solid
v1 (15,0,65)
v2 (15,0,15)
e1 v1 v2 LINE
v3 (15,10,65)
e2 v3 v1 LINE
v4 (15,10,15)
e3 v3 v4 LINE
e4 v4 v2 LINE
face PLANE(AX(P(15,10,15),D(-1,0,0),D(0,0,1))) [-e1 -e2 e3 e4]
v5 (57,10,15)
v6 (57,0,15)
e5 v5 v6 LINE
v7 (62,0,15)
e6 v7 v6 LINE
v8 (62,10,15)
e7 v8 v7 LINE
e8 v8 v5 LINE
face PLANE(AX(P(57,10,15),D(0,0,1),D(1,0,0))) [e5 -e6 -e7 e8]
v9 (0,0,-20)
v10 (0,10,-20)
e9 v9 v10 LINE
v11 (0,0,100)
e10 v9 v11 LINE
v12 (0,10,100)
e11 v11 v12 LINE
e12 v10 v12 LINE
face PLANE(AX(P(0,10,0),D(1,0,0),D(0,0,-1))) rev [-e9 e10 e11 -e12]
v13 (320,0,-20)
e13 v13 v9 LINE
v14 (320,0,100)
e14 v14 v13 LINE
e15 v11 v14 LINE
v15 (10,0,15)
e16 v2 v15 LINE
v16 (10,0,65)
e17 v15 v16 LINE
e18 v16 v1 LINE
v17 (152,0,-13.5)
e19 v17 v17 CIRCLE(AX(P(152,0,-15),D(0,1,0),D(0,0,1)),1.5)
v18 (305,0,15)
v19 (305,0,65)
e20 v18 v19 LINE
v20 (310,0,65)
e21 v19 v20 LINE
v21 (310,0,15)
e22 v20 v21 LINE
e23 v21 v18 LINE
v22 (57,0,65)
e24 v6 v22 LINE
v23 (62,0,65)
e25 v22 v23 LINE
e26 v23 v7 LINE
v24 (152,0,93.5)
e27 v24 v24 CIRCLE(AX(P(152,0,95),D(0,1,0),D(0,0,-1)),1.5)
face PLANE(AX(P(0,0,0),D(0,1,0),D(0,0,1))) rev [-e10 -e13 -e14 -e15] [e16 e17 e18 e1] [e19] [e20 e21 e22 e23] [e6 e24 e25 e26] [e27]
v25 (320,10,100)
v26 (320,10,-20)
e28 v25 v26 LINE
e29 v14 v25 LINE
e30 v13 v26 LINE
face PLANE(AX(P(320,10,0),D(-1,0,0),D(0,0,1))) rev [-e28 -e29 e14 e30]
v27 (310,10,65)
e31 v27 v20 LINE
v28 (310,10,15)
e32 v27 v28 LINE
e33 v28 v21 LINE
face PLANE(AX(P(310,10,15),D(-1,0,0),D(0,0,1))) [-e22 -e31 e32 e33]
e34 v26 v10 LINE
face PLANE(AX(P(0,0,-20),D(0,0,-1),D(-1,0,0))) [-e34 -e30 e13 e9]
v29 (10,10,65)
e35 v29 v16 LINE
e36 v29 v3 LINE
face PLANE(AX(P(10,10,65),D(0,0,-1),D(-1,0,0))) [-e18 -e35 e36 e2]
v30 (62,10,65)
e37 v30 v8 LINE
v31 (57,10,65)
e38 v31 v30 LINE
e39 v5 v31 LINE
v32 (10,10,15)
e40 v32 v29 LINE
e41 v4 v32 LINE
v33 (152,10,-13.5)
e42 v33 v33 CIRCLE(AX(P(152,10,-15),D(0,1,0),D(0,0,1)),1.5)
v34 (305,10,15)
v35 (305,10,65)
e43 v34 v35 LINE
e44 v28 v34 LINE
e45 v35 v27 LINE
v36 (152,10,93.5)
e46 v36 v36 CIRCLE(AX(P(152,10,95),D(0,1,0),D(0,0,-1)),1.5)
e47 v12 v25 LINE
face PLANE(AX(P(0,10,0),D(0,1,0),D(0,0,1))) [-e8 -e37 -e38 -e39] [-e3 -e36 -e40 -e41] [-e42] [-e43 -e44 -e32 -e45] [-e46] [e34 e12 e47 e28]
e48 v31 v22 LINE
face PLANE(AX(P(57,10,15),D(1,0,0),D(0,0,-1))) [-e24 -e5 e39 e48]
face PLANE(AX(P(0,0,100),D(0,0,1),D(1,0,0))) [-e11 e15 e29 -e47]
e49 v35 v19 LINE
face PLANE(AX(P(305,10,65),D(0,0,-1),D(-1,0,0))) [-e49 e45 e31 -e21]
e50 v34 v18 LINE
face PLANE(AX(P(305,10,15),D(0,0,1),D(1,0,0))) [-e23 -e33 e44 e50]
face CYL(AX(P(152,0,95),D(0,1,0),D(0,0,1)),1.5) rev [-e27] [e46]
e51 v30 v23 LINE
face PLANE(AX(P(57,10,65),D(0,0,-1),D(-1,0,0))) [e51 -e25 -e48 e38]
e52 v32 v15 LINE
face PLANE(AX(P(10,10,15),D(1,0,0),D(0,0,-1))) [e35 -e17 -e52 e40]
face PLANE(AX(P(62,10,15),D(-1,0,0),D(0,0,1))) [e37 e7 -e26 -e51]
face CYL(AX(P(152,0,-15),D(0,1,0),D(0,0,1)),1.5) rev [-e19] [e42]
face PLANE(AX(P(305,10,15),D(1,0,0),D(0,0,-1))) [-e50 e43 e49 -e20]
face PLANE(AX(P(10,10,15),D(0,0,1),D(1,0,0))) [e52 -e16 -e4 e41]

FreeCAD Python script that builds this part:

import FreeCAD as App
import Part
import Sketcher
from FreeCAD import Vector
Q = App.Units.Quantity

doc = App.newDocument("Part")
body = doc.addObject("PartDesign::Body", "Body")

# Sketch on XZ plane
sketch1 = doc.addObject("Sketcher::SketchObject", "Sketch")
body.addObject(sketch1)
sketch1.AttachmentSupport = (doc.XZ_Plane, [""])
sketch1.MapMode = "FlatFace"
sketch1.addGeometry(Part.LineSegment(Vector(0, 0, 0), Vector(0, 80, 0)), False)
sketch1.addGeometry(Part.LineSegment(Vector(0, 80, 0), Vector(320, 80, 0)), False)
sketch1.addGeometry(Part.LineSegment(Vector(320, 80, 0), Vector(320, 0, 0)), False)
sketch1.addGeometry(Part.LineSegment(Vector(320, 0, 0), Vector(0, 0, 0)), False)
sketch1.addGeometry(Part.LineSegment(Vector(15, 65, 0), Vector(10, 65, 0)), False)
sketch1.addGeometry(Part.LineSegment(Vector(10, 65, 0), Vector(10, 15, 0)), False)
sketch1.addGeometry(Part.LineSegment(Vector(10, 15, 0), Vector(15, 15, 0)), False)
sketch1.addGeometry(Part.LineSegment(Vector(15, 15, 0), Vector(15, 65, 0)), False)
sketch1.addGeometry(Part.LineSegment(Vector(62, 65, 0), Vector(57, 65, 0)), False)
sketch1.addGeometry(Part.LineSegment(Vector(57, 65, 0), Vector(57, 15, 0)), False)
sketch1.addGeometry(Part.LineSegment(Vector(57, 15, 0), Vector(62, 15, 0)), False)
sketch1.addGeometry(Part.LineSegment(Vector(62, 15, 0), Vector(62, 65, 0)), False)
sketch1.addGeometry(Part.LineSegment(Vector(310, 65, 0), Vector(305, 65, 0)), False)
sketch1.addGeometry(Part.LineSegment(Vector(305, 65, 0), Vector(305, 15, 0)), False)
sketch1.addGeometry(Part.LineSegment(Vector(305, 15, 0), Vector(310, 15, 0)), False)
sketch1.addGeometry(Part.LineSegment(Vector(310, 15, 0), Vector(310, 65, 0)), False)
sketch1.addConstraint(Sketcher.Constraint("Coincident", 0, 2, 1, 1))
sketch1.addConstraint(Sketcher.Constraint("Coincident", 1, 2, 2, 1))
sketch1.addConstraint(Sketcher.Constraint("Coincident", 2, 2, 3, 1))
sketch1.addConstraint(Sketcher.Constraint("Coincident", 3, 2, 0, 1))
sketch1.addConstraint(Sketcher.Constraint("Coincident", 4, 2, 5, 1))
sketch1.addConstraint(Sketcher.Constraint("Coincident", 5, 2, 6, 1))
sketch1.addConstraint(Sketcher.Constraint("Coincident", 6, 2, 7, 1))
sketch1.addConstraint(Sketcher.Constraint("Coincident", 7, 2, 4, 1))
sketch1.addConstraint(Sketcher.Constraint("Coincident", 8, 2, 9, 1))
sketch1.addConstraint(Sketcher.Constraint("Coincident", 9, 2, 10, 1))
sketch1.addConstraint(Sketcher.Constraint("Coincident", 10, 2, 11, 1))
sketch1.addConstraint(Sketcher.Constraint("Coincident", 11, 2, 8, 1))
sketch1.addConstraint(Sketcher.Constraint("Coincident", 12, 2, 13, 1))
sketch1.addConstraint(Sketcher.Constraint("Coincident", 13, 2, 14, 1))
sketch1.addConstraint(Sketcher.Constraint("Coincident", 14, 2, 15, 1))
sketch1.addConstraint(Sketcher.Constraint("Coincident", 15, 2, 12, 1))
sketch1.addConstraint(Sketcher.Constraint("Vertical", 0))
sketch1.addConstraint(Sketcher.Constraint("Horizontal", 1))
sketch1.addConstraint(Sketcher.Constraint("Vertical", 2))
sketch1.addConstraint(Sketcher.Constraint("Horizontal", 3))
sketch1.addConstraint(Sketcher.Constraint("Horizontal", 4))
sketch1.addConstraint(Sketcher.Constraint("Vertical", 5))
sketch1.addConstraint(Sketcher.Constraint("Horizontal", 6))
sketch1.addConstraint(Sketcher.Constraint("Vertical", 7))
sketch1.addConstraint(Sketcher.Constraint("Horizontal", 8))
sketch1.addConstraint(Sketcher.Constraint("Vertical", 9))
sketch1.addConstraint(Sketcher.Constraint("Horizontal", 10))
sketch1.addConstraint(Sketcher.Constraint("Vertical", 11))
sketch1.addConstraint(Sketcher.Constraint("Horizontal", 12))
sketch1.addConstraint(Sketcher.Constraint("Vertical", 13))
sketch1.addConstraint(Sketcher.Constraint("Horizontal", 14))
sketch1.addConstraint(Sketcher.Constraint("Vertical", 15))
sketch1.addConstraint(Sketcher.Constraint("Coincident", 3, 2, -1, 1))
sketch1.addConstraint(Sketcher.Constraint("Horizontal", 7, 2, 8, 2))
sketch1.addConstraint(Sketcher.Constraint("Horizontal", 6, 2, 9, 2))
sketch1.addConstraint(Sketcher.Constraint("Horizontal", 11, 2, 12, 2))
sketch1.addConstraint(Sketcher.Constraint("Horizontal", 10, 2, 13, 2))
sketch1.addConstraint(Sketcher.Constraint("Equal", 6, 8))
sketch1.addConstraint(Sketcher.Constraint("Equal", 10, 12))
sketch1.addConstraint(Sketcher.Constraint("DistanceX", 1, 1, 1, 2, Q("320 mm")))
sketch1.addConstraint(Sketcher.Constraint("DistanceX", 4, 2, 4, 1, Q("5 mm")))
sketch1.addConstraint(Sketcher.Constraint("DistanceY", 0, 1, 0, 2, Q("80 mm")))
sketch1.addConstraint(Sketcher.Constraint("DistanceY", 5, 2, 5, 1, Q("50 mm")))
sketch1.addConstraint(Sketcher.Constraint("DistanceX", -1, 1, 4, 2, Q("10 mm")))
sketch1.addConstraint(Sketcher.Constraint("DistanceY", -1, 1, 4, 2, Q("65 mm")))
sketch1.addConstraint(Sketcher.Constraint("DistanceX", -1, 1, 8, 2, Q("57 mm")))
sketch1.addConstraint(Sketcher.Constraint("DistanceX", -1, 1, 12, 2, Q("305 mm")))
pad1 = doc.addObject("PartDesign::Pad", "Pad")
body.addObject(pad1)
pad1.Profile = sketch1
pad1.Length = 10
pad1.Reversed = True

# Sketch on XZ plane
sketch2 = doc.addObject("Sketcher::SketchObject", "Sketch001")
body.addObject(sketch2)
sketch2.AttachmentSupport = (doc.XZ_Plane, [""])
sketch2.MapMode = "FlatFace"
sketch2.AttachmentOffset = App.Placement(Vector(0, 0, -10), App.Rotation())
sketch2.addGeometry(Part.LineSegment(Vector(0, -20, 0), Vector(0, 0, 0)), False)
sketch2.addGeometry(Part.LineSegment(Vector(0, 0, 0), Vector(320, 0, 0)), False)
sketch2.addGeometry(Part.LineSegment(Vector(320, 0, 0), Vector(320, -20, 0)), False)
sketch2.addGeometry(Part.LineSegment(Vector(320, -20, 0), Vector(0, -20, 0)), False)
sketch2.addGeometry(Part.LineSegment(Vector(0, 80, 0), Vector(0, 100, 0)), False)
sketch2.addGeometry(Part.LineSegment(Vector(0, 100, 0), Vector(320, 100, 0)), False)
sketch2.addGeometry(Part.LineSegment(Vector(320, 100, 0), Vector(320, 80, 0)), False)
sketch2.addGeometry(Part.LineSegment(Vector(320, 80, 0), Vector(0, 80, 0)), False)
sketch2.addConstraint(Sketcher.Constraint("Coincident", 0, 2, 1, 1))
sketch2.addConstraint(Sketcher.Constraint("Coincident", 1, 2, 2, 1))
sketch2.addConstraint(Sketcher.Constraint("Coincident", 2, 2, 3, 1))
sketch2.addConstraint(Sketcher.Constraint("Coincident", 3, 2, 0, 1))
sketch2.addConstraint(Sketcher.Constraint("Coincident", 4, 2, 5, 1))
sketch2.addConstraint(Sketcher.Constraint("Coincident", 5, 2, 6, 1))
sketch2.addConstraint(Sketcher.Constraint("Coincident", 6, 2, 7, 1))
sketch2.addConstraint(Sketcher.Constraint("Coincident", 7, 2, 4, 1))
sketch2.addConstraint(Sketcher.Constraint("Vertical", 0))
sketch2.addConstraint(Sketcher.Constraint("Horizontal", 1))
sketch2.addConstraint(Sketcher.Constraint("Vertical", 2))
sketch2.addConstraint(Sketcher.Constraint("Horizontal", 3))
sketch2.addConstraint(Sketcher.Constraint("Vertical", 4))
sketch2.addConstraint(Sketcher.Constraint("Horizontal", 5))
sketch2.addConstraint(Sketcher.Constraint("Vertical", 6))
sketch2.addConstraint(Sketcher.Constraint("Horizontal", 7))
sketch2.addConstraint(Sketcher.Constraint("Coincident", 0, 2, -1, 1))
sketch2.addConstraint(Sketcher.Constraint("PointOnObject", 4, 2, -2))
sketch2.addConstraint(Sketcher.Constraint("Vertical", 2, 2, 5, 2))
sketch2.addConstraint(Sketcher.Constraint("Equal", 2, 4))
sketch2.addConstraint(Sketcher.Constraint("DistanceX", 1, 1, 1, 2, Q("320 mm")))
sketch2.addConstraint(Sketcher.Constraint("DistanceY", 0, 1, 0, 2, Q("20 mm")))
sketch2.addConstraint(Sketcher.Constraint("DistanceY", -1, 1, 4, 2, Q("100 mm")))
pad2 = doc.addObject("PartDesign::Pad", "Pad001")
body.addObject(pad2)
pad2.Profile = sketch2
pad2.Length = 10

# Sketch on XZ plane
sketch3 = doc.addObject("Sketcher::SketchObject", "Sketch002")
body.addObject(sketch3)
sketch3.AttachmentSupport = (doc.XZ_Plane, [""])
sketch3.MapMode = "FlatFace"
sketch3.AttachmentOffset = App.Placement(Vector(0, 0, -10), App.Rotation())
sketch3.addGeometry(Part.Circle(Vector(152, -15, 0), Vector(0, 0, 1), 1.5), False)
sketch3.addGeometry(Part.Circle(Vector(152, 95, 0), Vector(0, 0, 1), 1.5), False)
sketch3.addConstraint(Sketcher.Constraint("Equal", 0, 1))
sketch3.addConstraint(Sketcher.Constraint("Vertical", 0, 3, 1, 3))
sketch3.addConstraint(Sketcher.Constraint("Diameter", 0, Q("3 mm")))
sketch3.addConstraint(Sketcher.Constraint("DistanceX", -1, 1, 0, 3, Q("152 mm")))
sketch3.addConstraint(Sketcher.Constraint("DistanceY", 0, 3, -1, 1, Q("15 mm")))
sketch3.addConstraint(Sketcher.Constraint("DistanceY", -1, 1, 1, 3, Q("95 mm")))
pocket1 = doc.addObject("PartDesign::Pocket", "Pocket")
body.addObject(pocket1)
pocket1.Profile = sketch3
pocket1.Length = 10
pocket1.Reversed = True

doc.recompute()
